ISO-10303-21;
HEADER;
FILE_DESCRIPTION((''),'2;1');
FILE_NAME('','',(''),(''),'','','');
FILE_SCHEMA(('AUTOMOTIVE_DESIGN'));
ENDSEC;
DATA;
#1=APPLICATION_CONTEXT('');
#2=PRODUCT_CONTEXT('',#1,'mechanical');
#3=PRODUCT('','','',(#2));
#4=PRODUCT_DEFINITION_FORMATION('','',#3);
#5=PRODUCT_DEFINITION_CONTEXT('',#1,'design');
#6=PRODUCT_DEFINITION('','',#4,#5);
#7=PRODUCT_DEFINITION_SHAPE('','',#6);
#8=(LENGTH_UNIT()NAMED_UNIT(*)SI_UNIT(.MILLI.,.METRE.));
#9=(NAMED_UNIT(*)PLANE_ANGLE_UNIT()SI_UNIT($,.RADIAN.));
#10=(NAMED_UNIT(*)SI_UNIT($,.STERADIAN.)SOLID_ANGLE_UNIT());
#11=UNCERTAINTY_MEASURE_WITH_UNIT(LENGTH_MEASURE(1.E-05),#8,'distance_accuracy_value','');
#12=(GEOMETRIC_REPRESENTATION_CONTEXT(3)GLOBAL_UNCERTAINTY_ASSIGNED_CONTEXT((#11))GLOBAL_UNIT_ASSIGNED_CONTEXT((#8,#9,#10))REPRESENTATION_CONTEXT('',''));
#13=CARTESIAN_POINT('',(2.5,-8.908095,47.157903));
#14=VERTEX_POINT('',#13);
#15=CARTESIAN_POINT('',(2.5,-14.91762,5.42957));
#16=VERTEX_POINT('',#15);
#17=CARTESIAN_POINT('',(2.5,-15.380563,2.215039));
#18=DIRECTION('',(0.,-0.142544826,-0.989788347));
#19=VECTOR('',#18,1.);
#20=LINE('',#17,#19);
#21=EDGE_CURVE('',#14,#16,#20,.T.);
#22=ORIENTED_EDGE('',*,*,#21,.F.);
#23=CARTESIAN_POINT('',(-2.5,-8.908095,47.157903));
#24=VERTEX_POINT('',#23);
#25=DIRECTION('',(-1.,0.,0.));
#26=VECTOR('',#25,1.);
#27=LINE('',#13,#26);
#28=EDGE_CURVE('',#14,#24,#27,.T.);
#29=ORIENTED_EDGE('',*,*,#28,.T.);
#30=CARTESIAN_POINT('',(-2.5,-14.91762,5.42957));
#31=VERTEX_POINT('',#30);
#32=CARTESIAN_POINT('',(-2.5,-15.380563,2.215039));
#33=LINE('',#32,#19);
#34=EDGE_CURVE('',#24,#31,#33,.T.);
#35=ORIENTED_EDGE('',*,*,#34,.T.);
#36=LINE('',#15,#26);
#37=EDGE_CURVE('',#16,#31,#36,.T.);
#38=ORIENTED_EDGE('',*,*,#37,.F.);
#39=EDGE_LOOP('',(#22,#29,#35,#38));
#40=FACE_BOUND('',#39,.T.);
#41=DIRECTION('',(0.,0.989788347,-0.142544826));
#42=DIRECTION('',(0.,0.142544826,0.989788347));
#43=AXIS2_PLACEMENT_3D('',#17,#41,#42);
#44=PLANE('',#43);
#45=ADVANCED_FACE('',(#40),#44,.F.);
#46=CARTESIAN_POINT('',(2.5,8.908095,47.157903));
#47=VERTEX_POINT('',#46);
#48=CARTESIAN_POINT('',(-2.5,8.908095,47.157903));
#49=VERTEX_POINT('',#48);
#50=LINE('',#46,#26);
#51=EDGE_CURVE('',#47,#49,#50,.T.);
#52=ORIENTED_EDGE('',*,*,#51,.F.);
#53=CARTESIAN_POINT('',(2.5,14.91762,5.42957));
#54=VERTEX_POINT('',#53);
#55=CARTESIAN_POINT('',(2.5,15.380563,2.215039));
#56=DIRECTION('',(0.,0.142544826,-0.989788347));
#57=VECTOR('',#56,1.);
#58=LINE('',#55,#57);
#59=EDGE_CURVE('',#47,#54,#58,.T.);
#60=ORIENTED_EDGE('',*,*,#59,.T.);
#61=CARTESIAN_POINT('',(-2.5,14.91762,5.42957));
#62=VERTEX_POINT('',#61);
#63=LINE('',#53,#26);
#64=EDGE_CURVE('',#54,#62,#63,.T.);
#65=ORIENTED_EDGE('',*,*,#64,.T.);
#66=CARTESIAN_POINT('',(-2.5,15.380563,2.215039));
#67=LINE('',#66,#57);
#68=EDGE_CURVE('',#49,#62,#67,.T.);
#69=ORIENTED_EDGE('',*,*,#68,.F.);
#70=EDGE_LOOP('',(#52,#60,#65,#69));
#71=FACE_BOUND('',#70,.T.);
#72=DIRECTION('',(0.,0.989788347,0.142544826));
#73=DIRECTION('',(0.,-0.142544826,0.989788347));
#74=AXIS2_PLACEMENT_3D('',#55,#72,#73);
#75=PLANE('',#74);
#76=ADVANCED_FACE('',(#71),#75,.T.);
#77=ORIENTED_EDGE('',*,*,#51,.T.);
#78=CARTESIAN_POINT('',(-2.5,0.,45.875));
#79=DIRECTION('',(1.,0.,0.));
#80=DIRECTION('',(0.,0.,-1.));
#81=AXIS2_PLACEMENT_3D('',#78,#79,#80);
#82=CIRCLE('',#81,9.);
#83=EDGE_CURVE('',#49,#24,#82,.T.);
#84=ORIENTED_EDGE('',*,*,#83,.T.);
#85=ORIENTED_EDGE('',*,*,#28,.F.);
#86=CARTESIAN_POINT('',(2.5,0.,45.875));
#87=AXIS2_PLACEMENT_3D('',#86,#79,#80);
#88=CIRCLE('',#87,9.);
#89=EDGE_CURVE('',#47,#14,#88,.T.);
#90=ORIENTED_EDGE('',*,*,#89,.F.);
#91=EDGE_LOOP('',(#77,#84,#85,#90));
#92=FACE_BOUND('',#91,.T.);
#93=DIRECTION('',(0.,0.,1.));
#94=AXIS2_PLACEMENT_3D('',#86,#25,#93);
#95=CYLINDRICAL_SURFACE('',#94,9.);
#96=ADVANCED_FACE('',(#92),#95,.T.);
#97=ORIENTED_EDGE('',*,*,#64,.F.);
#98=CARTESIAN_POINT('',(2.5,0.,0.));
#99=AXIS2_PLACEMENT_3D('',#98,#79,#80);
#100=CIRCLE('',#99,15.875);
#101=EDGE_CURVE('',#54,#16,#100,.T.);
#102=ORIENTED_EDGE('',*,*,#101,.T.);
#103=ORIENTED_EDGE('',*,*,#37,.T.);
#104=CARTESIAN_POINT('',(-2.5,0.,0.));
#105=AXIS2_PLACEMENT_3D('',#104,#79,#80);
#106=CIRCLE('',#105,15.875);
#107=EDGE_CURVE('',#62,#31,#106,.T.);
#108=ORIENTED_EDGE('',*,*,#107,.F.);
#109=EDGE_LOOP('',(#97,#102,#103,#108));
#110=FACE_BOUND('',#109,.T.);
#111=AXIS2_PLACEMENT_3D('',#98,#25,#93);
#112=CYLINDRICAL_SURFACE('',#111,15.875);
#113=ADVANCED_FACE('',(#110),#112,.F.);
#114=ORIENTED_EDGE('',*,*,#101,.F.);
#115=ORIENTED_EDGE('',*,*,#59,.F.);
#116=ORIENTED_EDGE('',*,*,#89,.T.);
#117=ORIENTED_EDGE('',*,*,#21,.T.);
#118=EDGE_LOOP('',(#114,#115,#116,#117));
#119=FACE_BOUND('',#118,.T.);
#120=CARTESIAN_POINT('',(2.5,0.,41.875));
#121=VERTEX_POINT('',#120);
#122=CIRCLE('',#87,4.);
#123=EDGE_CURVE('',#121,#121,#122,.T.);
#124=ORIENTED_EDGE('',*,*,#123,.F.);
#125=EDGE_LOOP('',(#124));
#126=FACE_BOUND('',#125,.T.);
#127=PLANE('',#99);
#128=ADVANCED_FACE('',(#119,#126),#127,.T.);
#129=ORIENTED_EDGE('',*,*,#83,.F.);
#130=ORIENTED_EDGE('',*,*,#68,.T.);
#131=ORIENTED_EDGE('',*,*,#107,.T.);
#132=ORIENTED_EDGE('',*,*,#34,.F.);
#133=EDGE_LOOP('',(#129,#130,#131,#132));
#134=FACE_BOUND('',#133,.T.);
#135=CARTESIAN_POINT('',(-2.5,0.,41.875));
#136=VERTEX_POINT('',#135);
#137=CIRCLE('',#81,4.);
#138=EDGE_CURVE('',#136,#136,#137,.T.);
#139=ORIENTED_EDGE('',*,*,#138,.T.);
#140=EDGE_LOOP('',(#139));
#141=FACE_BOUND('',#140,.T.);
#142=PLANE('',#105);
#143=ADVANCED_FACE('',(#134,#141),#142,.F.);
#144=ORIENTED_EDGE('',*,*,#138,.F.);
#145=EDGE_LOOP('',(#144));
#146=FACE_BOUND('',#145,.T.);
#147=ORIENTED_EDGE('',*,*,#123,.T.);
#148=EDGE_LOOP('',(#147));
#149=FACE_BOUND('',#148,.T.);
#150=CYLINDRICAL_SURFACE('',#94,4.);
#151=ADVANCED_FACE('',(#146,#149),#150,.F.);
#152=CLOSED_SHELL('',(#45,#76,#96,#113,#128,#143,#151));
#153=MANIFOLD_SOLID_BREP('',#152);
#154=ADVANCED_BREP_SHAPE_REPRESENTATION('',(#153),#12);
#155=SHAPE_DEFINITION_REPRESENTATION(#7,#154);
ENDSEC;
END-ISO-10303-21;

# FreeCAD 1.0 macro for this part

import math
import FreeCAD as App
import Part
import Sketcher
from FreeCAD import Vector

doc = App.newDocument("Part")
params = doc.addObject("Spreadsheet::Sheet", "Params")
for row, (alias, value) in enumerate([
    ("sketch1_radius", "9 mm"),
    ("sketch1_radius2", "4 mm"),
    ("pad1_length", "5 mm"),
], start=1):
    params.set(f"A{row}", alias)
    params.set(f"B{row}", "=" + value)
    params.setAlias(f"B{row}", alias)

body = doc.addObject("PartDesign::Body", "Body")

# Sketch on YZ plane
sketch1 = body.newObject("Sketcher::SketchObject", "Sketch")
sketch1.AttachmentSupport = (doc.getObject("YZ_Plane"), [""])
sketch1.MapMode = "FlatFace"
sketch1.addGeometry([
    Part.ArcOfCircle(Part.Circle(Vector(0, 0, 0), Vector(0, 0, 1), 15.9), math.radians(90), math.radians(160)),  # 0
    Part.ArcOfCircle(Part.Circle(Vector(0, 0, 0), Vector(0, 0, 1), 15.9), math.radians(20), math.radians(90)),  # 1
    Part.LineSegment(Vector(14.9, 5.4, 0), Vector(8.9, 47.2, 0)),  # 2
    Part.ArcOfCircle(Part.Circle(Vector(0, 45.9, 0), Vector(0, 0, 1), 9), math.radians(8), math.radians(172)),  # 3
    Part.LineSegment(Vector(-8.9, 47.2, 0), Vector(-14.9, 5.4, 0)),  # 4
    Part.ArcOfCircle(Part.Circle(Vector(0, 45.9, 0), Vector(0, 0, 1), 4), math.radians(0), math.radians(270)),  # 5
    Part.ArcOfCircle(Part.Circle(Vector(0, 45.9, 0), Vector(0, 0, 1), 4), math.radians(-90), math.radians(0)),  # 6
], False)
sketch1.addConstraint([
    Sketcher.Constraint("Tangent", 0, 1, 1, 2),
    Sketcher.Constraint("Coincident", 1, 1, 2, 1),
    Sketcher.Constraint("Tangent", 2, 2, 3, 1),
    Sketcher.Constraint("Tangent", 3, 2, 4, 1),
    Sketcher.Constraint("Coincident", 4, 2, 0, 2),
    Sketcher.Constraint("Tangent", 5, 1, 6, 2),
    Sketcher.Constraint("Coincident", 6, 1, 5, 2),
    Sketcher.Constraint("Coincident", 0, 3, -1, 1),
    Sketcher.Constraint("Coincident", 5, 3, 3, 3),
    Sketcher.Constraint("Equal", 0, 1),
    Sketcher.Constraint("Symmetric", 2, 2, 3, 2, -2),
    Sketcher.Constraint("PointOnObject", 0, 1, -2),
    Sketcher.Constraint("PointOnObject", 6, 1, -2),
    Sketcher.Constraint("Horizontal", 6, 3, 5, 1),
    Sketcher.Constraint("Radius", 3, 9.0),
    Sketcher.Constraint("Radius", 5, 4.0),
    Sketcher.Constraint("Radius", 0, 15.875),
    Sketcher.Constraint("DistanceY", 0, 1, 6, 3, 30.0),
    Sketcher.Constraint("DistanceX", -1, 1, 1, 1, 14.91762),
])
sketch1.setExpression("Constraints[14]", "Params.sketch1_radius")
sketch1.setExpression("Constraints[15]", "Params.sketch1_radius2")
pad1 = body.newObject("PartDesign::Pad", "Pad")
pad1.Profile = sketch1
pad1.setExpression("Length", "Params.pad1_length")
pad1.Midplane = True

doc.recompute()
